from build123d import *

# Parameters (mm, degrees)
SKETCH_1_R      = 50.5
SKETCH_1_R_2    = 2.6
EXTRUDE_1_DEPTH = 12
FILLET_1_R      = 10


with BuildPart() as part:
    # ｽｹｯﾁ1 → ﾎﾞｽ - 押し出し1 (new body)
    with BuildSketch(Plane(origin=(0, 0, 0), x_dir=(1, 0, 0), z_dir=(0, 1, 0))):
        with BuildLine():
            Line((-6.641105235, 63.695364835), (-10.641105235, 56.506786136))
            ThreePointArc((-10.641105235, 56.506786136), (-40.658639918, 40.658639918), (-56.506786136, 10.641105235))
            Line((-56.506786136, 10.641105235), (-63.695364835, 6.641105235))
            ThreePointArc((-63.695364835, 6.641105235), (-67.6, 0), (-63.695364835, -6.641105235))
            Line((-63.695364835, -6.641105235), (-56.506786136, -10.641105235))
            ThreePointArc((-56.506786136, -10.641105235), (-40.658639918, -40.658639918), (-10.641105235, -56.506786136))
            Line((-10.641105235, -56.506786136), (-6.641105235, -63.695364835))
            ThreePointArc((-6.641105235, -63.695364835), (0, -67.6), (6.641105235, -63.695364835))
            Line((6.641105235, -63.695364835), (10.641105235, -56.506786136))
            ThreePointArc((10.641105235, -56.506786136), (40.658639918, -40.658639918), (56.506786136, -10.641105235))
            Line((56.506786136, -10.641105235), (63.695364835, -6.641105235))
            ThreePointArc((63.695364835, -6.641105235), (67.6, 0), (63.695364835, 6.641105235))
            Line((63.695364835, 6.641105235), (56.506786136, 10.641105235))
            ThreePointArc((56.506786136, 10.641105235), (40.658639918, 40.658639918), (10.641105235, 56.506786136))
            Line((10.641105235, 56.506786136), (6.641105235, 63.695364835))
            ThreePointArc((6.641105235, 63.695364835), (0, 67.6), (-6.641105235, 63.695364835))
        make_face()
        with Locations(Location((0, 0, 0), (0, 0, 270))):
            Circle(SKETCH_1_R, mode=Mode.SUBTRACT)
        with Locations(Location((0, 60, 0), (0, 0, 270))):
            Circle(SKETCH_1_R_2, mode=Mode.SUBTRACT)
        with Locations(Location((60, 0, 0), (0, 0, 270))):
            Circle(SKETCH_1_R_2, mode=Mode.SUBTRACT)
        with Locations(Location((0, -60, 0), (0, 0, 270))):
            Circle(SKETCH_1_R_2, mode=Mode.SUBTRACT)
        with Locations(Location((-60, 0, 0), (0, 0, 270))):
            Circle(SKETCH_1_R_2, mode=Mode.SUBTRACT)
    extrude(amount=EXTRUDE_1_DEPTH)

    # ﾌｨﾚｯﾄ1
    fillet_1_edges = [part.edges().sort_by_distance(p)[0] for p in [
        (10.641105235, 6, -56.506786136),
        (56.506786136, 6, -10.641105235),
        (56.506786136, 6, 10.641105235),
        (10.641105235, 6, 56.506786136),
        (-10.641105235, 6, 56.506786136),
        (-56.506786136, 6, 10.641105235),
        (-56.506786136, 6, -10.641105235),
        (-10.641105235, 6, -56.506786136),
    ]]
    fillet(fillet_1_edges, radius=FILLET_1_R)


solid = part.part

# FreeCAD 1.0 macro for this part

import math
import FreeCAD as App
import Part
import Sketcher

V = App.Vector


def edges_at(feature, points):
    """Names of the edges that pass closest to the given points."""
    edges = feature.Shape.Edges
    near = lambda p: min(range(len(edges)), key=lambda i: edges[i].distToShape(Part.Vertex(*p))[0])
    return sorted({f"Edge{near(p) + 1}" for p in points})

doc = App.newDocument("Part")
body = doc.addObject("PartDesign::Body", "Body")

# Sketch on XZ plane
sketch1 = body.newObject("Sketcher::SketchObject", "Sketch")
sketch1.AttachmentSupport = (doc.getObject("XZ_Plane"), [""])
sketch1.MapMode = "FlatFace"
sketch1.addGeometry(Part.LineSegment(V(-6.6, -63.7, 0), V(-10.6, -56.5, 0)), False)
sketch1.addGeometry(Part.ArcOfCircle(Part.Circle(V(0, 0, 0), V(0, 0, 1), 57.5), math.radians(-169), math.radians(-101)), False)
sketch1.addGeometry(Part.LineSegment(V(-56.5, -10.6, 0), V(-63.7, -6.6, 0)), False)
sketch1.addGeometry(Part.ArcOfCircle(Part.Circle(V(-60, 0, 0), V(0, 0, 1), 7.6), math.radians(119), math.radians(241)), False)
sketch1.addGeometry(Part.LineSegment(V(-63.7, 6.6, 0), V(-56.5, 10.6, 0)), False)
sketch1.addGeometry(Part.ArcOfCircle(Part.Circle(V(0, 0, 0), V(0, 0, 1), 57.5), math.radians(101), math.radians(169)), False)
sketch1.addGeometry(Part.LineSegment(V(-10.6, 56.5, 0), V(-6.6, 63.7, 0)), False)
sketch1.addGeometry(Part.ArcOfCircle(Part.Circle(V(0, 60, 0), V(0, 0, 1), 7.6), math.radians(29), math.radians(151)), False)
sketch1.addGeometry(Part.LineSegment(V(6.6, 63.7, 0), V(10.6, 56.5, 0)), False)
sketch1.addGeometry(Part.ArcOfCircle(Part.Circle(V(0, 0, 0), V(0, 0, 1), 57.5), math.radians(11), math.radians(79)), False)
sketch1.addGeometry(Part.LineSegment(V(56.5, 10.6, 0), V(63.7, 6.6, 0)), False)
sketch1.addGeometry(Part.ArcOfCircle(Part.Circle(V(60, 0, 0), V(0, 0, 1), 7.6), math.radians(-61), math.radians(61)), False)
sketch1.addGeometry(Part.LineSegment(V(63.7, -6.6, 0), V(56.5, -10.6, 0)), False)
sketch1.addGeometry(Part.ArcOfCircle(Part.Circle(V(0, 0, 0), V(0, 0, 1), 57.5), math.radians(-79), math.radians(-11)), False)
sketch1.addGeometry(Part.LineSegment(V(10.6, -56.5, 0), V(6.6, -63.7, 0)), False)
sketch1.addGeometry(Part.ArcOfCircle(Part.Circle(V(0, -60, 0), V(0, 0, 1), 7.6), math.radians(-151), math.radians(-29)), False)
sketch1.addGeometry(Part.Circle(V(0, 60, 0), V(0, 0, 1), 2.6), False)
sketch1.addGeometry(Part.Circle(V(-60, 0, 0), V(0, 0, 1), 2.6), False)
sketch1.addGeometry(Part.Circle(V(0, 0, 0), V(0, 0, 1), 50.5), False)
sketch1.addGeometry(Part.Circle(V(60, 0, 0), V(0, 0, 1), 2.6), False)
sketch1.addGeometry(Part.Circle(V(0, -60, 0), V(0, 0, 1), 2.6), False)
sketch1.addConstraint(Sketcher.Constraint("Coincident", 0, 2, 1, 2))
sketch1.addConstraint(Sketcher.Constraint("Coincident", 1, 1, 2, 1))
sketch1.addConstraint(Sketcher.Constraint("Tangent", 2, 2, 3, 2))
sketch1.addConstraint(Sketcher.Constraint("Tangent", 3, 1, 4, 1))
sketch1.addConstraint(Sketcher.Constraint("Coincident", 4, 2, 5, 2))
sketch1.addConstraint(Sketcher.Constraint("Coincident", 5, 1, 6, 1))
sketch1.addConstraint(Sketcher.Constraint("Tangent", 6, 2, 7, 2))
sketch1.addConstraint(Sketcher.Constraint("Tangent", 7, 1, 8, 1))
sketch1.addConstraint(Sketcher.Constraint("Coincident", 8, 2, 9, 2))
sketch1.addConstraint(Sketcher.Constraint("Coincident", 9, 1, 10, 1))
sketch1.addConstraint(Sketcher.Constraint("Tangent", 10, 2, 11, 2))
sketch1.addConstraint(Sketcher.Constraint("Tangent", 11, 1, 12, 1))
sketch1.addConstraint(Sketcher.Constraint("Coincident", 12, 2, 13, 2))
sketch1.addConstraint(Sketcher.Constraint("Coincident", 13, 1, 14, 1))
sketch1.addConstraint(Sketcher.Constraint("Tangent", 14, 2, 15, 2))
sketch1.addConstraint(Sketcher.Constraint("Tangent", 15, 1, 0, 1))
sketch1.addConstraint(Sketcher.Constraint("Coincident", 1, 3, -1, 1))
sketch1.addConstraint(Sketcher.Constraint("Coincident", 5, 3, -1, 1))
sketch1.addConstraint(Sketcher.Constraint("Coincident", 9, 3, -1, 1))
sketch1.addConstraint(Sketcher.Constraint("Coincident", 13, 3, -1, 1))
sketch1.addConstraint(Sketcher.Constraint("Coincident", 18, 3, -1, 1))
sketch1.addConstraint(Sketcher.Constraint("Coincident", 16, 3, 7, 3))
sketch1.addConstraint(Sketcher.Constraint("Coincident", 17, 3, 3, 3))
sketch1.addConstraint(Sketcher.Constraint("Coincident", 19, 3, 11, 3))
sketch1.addConstraint(Sketcher.Constraint("Coincident", 20, 3, 15, 3))
sketch1.addConstraint(Sketcher.Constraint("Equal", 1, 5))
sketch1.addConstraint(Sketcher.Constraint("Equal", 3, 7))
sketch1.addConstraint(Sketcher.Constraint("Equal", 5, 9))
sketch1.addConstraint(Sketcher.Constraint("Equal", 7, 11))
sketch1.addConstraint(Sketcher.Constraint("Equal", 9, 13))
sketch1.addConstraint(Sketcher.Constraint("Equal", 11, 15))
sketch1.addConstraint(Sketcher.Constraint("Equal", 16, 17))
sketch1.addConstraint(Sketcher.Constraint("Equal", 17, 19))
sketch1.addConstraint(Sketcher.Constraint("Equal", 19, 20))
sketch1.addConstraint(Sketcher.Constraint("Symmetric", 3, 3, 11, 3, -1, 1))
sketch1.addConstraint(Sketcher.Constraint("Symmetric", 7, 3, 15, 3, -1, 1))
sketch1.addConstraint(Sketcher.Constraint("Symmetric", 6, 2, 7, 1, -2))
sketch1.addConstraint(Sketcher.Constraint("Symmetric", 3, 1, 10, 2, -2))
sketch1.addConstraint(Sketcher.Constraint("Perpendicular", 0, 4))
sketch1.addConstraint(Sketcher.Constraint("Perpendicular", 2, 6))
sketch1.addConstraint(Sketcher.Constraint("Perpendicular", 4, 8))
sketch1.addConstraint(Sketcher.Constraint("Perpendicular", 8, 12))
sketch1.addConstraint(Sketcher.Constraint("Perpendicular", 10, 14))
sketch1.addConstraint(Sketcher.Constraint("Equal", 0, 2))
sketch1.addConstraint(Sketcher.Constraint("Diameter", 18, 101.0))
sketch1.addConstraint(Sketcher.Constraint("Diameter", 16, 5.2))
sketch1.addConstraint(Sketcher.Constraint("Radius", 1, 57.5))
sketch1.addConstraint(Sketcher.Constraint("Radius", 3, 7.6))
sketch1.addConstraint(Sketcher.Constraint("DistanceX", 3, 3, -1, 1, 60.0))
sketch1.addConstraint(Sketcher.Constraint("DistanceY", 1, 1, 2, 2, 4.0))
pad1 = body.newObject("PartDesign::Pad", "Pad")
pad1.Profile = sketch1
pad1.Length = 12
pad1.Reversed = True
doc.recompute()

fillet = body.newObject("PartDesign::Fillet", "Fillet")
fillet.Base = (pad1, edges_at(pad1, [
    (10.641, 6, -56.507),
    (56.507, 6, -10.641),
    (56.507, 6, 10.641),
    (10.641, 6, 56.507),
    (-10.641, 6, 56.507),
    (-56.507, 6, 10.641),
    (-56.507, 6, -10.641),
    (-10.641, 6, -56.507),
]))
fillet.Radius = 10

doc.recompute()
